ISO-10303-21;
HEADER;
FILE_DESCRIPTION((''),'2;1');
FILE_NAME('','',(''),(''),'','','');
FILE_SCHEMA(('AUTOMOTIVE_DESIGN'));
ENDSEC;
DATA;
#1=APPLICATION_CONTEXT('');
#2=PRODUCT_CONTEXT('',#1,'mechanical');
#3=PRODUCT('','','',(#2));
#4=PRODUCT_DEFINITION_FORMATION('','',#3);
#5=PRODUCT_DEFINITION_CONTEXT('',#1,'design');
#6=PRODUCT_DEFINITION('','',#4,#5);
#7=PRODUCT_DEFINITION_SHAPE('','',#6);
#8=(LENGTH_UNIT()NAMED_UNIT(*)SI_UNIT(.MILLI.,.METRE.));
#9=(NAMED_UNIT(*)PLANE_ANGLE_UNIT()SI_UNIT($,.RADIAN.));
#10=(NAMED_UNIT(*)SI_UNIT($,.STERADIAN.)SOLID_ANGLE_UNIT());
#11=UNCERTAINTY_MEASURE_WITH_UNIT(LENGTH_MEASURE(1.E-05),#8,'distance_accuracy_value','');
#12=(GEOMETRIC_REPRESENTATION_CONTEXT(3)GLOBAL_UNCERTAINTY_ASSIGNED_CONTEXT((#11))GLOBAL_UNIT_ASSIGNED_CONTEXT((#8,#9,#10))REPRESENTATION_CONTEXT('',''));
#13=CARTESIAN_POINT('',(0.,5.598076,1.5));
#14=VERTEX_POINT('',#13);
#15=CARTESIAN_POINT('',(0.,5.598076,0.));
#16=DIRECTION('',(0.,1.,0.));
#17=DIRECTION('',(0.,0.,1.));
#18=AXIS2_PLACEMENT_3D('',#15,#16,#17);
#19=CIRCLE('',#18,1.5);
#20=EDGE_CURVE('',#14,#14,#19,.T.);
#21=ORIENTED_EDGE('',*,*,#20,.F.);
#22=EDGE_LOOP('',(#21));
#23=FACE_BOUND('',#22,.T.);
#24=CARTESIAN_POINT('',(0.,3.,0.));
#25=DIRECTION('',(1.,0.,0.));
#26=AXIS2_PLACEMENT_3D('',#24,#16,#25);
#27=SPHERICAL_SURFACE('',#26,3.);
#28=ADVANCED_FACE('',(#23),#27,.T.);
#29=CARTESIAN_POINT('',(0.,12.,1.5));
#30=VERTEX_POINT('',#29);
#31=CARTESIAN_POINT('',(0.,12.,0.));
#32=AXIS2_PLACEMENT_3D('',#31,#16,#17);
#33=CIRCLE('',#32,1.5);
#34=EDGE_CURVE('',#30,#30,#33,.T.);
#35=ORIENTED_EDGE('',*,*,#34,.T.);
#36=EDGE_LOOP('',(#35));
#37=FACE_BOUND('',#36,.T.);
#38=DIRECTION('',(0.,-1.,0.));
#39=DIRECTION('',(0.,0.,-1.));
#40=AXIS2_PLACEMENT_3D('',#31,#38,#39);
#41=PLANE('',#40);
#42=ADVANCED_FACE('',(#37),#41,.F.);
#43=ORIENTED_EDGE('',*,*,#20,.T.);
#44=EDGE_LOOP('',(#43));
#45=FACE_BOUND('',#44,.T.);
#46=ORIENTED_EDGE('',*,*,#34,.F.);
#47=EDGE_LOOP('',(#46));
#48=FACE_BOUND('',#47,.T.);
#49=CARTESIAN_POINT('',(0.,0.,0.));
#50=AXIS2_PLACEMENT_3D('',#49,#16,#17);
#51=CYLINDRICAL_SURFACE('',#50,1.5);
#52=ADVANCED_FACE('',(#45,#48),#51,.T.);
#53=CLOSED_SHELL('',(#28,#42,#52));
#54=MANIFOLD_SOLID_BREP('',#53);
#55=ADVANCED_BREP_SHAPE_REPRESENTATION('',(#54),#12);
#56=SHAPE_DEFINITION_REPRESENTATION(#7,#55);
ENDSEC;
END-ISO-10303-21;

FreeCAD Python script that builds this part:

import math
import FreeCAD as App
import Part
import Sketcher

V = App.Vector

doc = App.newDocument("Part")
body = doc.addObject("PartDesign::Body", "Body")

# Sketch on XY plane
sketch1 = doc.addObject("Sketcher::SketchObject", "Sketch")
body.addObject(sketch1)
sketch1.AttachmentSupport = (doc.XY_Plane, [""])
sketch1.MapMode = "FlatFace"
sketch1.addGeometry([
    Part.LineSegment(V(0, 12, 0), V(0, 0, 0)),
    Part.ArcOfCircle(Part.Circle(V(0, 3, 0), V(0, 0, 1), 3), math.radians(-90), math.radians(60)),
    Part.LineSegment(V(1.5, 5.6, 0), V(1.5, 12, 0)),
    Part.LineSegment(V(1.5, 12, 0), V(0, 12, 0)),
], False)
sketch1.addConstraint([
    Sketcher.Constraint("Coincident", 0, 2, 1, 1),
    Sketcher.Constraint("Coincident", 1, 2, 2, 1),
    Sketcher.Constraint("Coincident", 2, 2, 3, 1),
    Sketcher.Constraint("Coincident", 3, 2, 0, 1),
    Sketcher.Constraint("Vertical", 0),
    Sketcher.Constraint("Vertical", 2),
    Sketcher.Constraint("Horizontal", 3),
    Sketcher.Constraint("Coincident", 0, 2, -1, 1),
    Sketcher.Constraint("PointOnObject", 1, 3, -2),
    Sketcher.Constraint("Radius", 1, 3.0),
    Sketcher.Constraint("DistanceY", 0, 2, 0, 1, 12.0),
    Sketcher.Constraint("DistanceX", 3, 2, 3, 1, 1.5),
])
revolution = doc.addObject("PartDesign::Revolution", "Revolution")
body.addObject(revolution)
revolution.Profile = sketch1
revolution.ReferenceAxis = (sketch1, ["V_Axis"])
revolution.Angle = 360

doc.recompute()
